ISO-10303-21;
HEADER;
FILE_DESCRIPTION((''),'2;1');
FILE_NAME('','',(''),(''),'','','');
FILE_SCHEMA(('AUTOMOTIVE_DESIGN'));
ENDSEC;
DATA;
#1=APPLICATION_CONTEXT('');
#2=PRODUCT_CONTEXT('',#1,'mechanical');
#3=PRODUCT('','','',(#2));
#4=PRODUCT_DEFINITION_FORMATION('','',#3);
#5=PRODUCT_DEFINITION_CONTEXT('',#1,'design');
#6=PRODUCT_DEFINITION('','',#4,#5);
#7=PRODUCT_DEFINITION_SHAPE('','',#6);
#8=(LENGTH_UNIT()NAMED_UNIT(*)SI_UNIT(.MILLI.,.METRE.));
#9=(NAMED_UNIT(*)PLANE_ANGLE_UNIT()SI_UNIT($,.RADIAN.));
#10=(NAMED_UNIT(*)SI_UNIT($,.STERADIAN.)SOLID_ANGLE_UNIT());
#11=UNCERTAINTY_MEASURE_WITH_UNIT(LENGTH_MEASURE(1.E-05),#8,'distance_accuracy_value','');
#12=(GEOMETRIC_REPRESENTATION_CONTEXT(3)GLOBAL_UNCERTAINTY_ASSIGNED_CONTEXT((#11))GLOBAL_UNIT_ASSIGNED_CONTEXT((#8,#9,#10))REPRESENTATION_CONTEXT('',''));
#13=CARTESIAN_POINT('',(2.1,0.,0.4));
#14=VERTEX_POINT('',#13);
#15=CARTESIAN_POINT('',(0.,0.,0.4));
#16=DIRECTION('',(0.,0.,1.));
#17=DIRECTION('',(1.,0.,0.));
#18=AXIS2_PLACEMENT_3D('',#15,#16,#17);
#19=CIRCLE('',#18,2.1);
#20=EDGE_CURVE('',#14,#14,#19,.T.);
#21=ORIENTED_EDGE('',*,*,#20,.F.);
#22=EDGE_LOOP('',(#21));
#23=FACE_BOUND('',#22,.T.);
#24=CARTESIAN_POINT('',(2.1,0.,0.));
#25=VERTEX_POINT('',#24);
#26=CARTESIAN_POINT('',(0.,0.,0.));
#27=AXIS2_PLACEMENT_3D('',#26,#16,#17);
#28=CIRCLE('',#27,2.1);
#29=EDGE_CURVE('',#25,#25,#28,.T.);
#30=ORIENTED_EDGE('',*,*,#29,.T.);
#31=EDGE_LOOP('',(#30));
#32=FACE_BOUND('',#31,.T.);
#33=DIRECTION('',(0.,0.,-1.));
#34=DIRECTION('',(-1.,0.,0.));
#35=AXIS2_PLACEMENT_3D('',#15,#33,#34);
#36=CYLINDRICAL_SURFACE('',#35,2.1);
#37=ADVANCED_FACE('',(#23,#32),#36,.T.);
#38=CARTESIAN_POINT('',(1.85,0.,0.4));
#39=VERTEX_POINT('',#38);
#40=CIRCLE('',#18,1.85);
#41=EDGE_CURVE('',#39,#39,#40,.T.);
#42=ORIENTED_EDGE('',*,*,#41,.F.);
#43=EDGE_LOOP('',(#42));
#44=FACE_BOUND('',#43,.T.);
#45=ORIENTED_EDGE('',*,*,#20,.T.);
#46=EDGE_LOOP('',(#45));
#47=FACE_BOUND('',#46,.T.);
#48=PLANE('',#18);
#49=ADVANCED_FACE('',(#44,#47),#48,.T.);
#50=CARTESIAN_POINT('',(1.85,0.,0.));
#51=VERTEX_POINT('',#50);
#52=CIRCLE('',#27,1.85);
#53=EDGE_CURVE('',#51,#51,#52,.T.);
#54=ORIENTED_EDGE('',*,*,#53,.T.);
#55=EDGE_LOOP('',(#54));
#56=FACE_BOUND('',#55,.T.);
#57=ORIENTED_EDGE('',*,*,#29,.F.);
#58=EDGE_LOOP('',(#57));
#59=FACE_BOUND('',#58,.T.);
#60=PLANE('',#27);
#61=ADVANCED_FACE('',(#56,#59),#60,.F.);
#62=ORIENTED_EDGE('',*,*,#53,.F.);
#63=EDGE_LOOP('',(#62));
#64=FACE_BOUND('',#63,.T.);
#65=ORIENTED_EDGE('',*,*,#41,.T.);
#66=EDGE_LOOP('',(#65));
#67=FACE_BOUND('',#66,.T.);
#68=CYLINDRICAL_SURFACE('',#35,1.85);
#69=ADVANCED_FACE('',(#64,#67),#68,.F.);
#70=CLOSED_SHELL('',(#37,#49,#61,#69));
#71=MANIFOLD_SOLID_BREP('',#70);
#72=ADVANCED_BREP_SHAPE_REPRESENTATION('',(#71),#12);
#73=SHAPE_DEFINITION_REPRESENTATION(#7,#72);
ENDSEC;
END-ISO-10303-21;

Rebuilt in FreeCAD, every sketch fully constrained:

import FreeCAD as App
import Part
import Sketcher

V = App.Vector

doc = App.newDocument("Part")
params = doc.addObject("Spreadsheet::Sheet", "Params")
for row, (alias, value) in enumerate([
    ("sketch1_diameter", "4.2 mm"),
    ("sketch1_diameter2", "3.7 mm"),
    ("pad1_length", "0.4 mm"),
], start=1):
    params.set(f"A{row}", alias)
    params.set(f"B{row}", "=" + value)
    params.setAlias(f"B{row}", alias)

body = doc.addObject("PartDesign::Body", "Body")

# Sketch on XY plane
sketch1 = body.newObject("Sketcher::SketchObject", "Sketch")
sketch1.AttachmentSupport = (doc.getObject("XY_Plane"), [""])
sketch1.MapMode = "FlatFace"
sketch1.addGeometry(Part.Circle(V(0, 0, 0), V(0, 0, 1), 2.1), False)
sketch1.addGeometry(Part.Circle(V(0, 0, 0), V(0, 0, 1), 1.9), False)
sketch1.addConstraint(Sketcher.Constraint("Coincident", 0, 3, -1, 1))
sketch1.addConstraint(Sketcher.Constraint("Coincident", 1, 3, -1, 1))
sketch1.addConstraint(Sketcher.Constraint("Diameter", 0, 4.2))
sketch1.addConstraint(Sketcher.Constraint("Diameter", 1, 3.7))
sketch1.setExpression("Constraints[2]", "Params.sketch1_diameter")
sketch1.setExpression("Constraints[3]", "Params.sketch1_diameter2")
pad1 = body.newObject("PartDesign::Pad", "Pad")
pad1.Profile = sketch1
pad1.setExpression("Length", "Params.pad1_length")

doc.recompute()
